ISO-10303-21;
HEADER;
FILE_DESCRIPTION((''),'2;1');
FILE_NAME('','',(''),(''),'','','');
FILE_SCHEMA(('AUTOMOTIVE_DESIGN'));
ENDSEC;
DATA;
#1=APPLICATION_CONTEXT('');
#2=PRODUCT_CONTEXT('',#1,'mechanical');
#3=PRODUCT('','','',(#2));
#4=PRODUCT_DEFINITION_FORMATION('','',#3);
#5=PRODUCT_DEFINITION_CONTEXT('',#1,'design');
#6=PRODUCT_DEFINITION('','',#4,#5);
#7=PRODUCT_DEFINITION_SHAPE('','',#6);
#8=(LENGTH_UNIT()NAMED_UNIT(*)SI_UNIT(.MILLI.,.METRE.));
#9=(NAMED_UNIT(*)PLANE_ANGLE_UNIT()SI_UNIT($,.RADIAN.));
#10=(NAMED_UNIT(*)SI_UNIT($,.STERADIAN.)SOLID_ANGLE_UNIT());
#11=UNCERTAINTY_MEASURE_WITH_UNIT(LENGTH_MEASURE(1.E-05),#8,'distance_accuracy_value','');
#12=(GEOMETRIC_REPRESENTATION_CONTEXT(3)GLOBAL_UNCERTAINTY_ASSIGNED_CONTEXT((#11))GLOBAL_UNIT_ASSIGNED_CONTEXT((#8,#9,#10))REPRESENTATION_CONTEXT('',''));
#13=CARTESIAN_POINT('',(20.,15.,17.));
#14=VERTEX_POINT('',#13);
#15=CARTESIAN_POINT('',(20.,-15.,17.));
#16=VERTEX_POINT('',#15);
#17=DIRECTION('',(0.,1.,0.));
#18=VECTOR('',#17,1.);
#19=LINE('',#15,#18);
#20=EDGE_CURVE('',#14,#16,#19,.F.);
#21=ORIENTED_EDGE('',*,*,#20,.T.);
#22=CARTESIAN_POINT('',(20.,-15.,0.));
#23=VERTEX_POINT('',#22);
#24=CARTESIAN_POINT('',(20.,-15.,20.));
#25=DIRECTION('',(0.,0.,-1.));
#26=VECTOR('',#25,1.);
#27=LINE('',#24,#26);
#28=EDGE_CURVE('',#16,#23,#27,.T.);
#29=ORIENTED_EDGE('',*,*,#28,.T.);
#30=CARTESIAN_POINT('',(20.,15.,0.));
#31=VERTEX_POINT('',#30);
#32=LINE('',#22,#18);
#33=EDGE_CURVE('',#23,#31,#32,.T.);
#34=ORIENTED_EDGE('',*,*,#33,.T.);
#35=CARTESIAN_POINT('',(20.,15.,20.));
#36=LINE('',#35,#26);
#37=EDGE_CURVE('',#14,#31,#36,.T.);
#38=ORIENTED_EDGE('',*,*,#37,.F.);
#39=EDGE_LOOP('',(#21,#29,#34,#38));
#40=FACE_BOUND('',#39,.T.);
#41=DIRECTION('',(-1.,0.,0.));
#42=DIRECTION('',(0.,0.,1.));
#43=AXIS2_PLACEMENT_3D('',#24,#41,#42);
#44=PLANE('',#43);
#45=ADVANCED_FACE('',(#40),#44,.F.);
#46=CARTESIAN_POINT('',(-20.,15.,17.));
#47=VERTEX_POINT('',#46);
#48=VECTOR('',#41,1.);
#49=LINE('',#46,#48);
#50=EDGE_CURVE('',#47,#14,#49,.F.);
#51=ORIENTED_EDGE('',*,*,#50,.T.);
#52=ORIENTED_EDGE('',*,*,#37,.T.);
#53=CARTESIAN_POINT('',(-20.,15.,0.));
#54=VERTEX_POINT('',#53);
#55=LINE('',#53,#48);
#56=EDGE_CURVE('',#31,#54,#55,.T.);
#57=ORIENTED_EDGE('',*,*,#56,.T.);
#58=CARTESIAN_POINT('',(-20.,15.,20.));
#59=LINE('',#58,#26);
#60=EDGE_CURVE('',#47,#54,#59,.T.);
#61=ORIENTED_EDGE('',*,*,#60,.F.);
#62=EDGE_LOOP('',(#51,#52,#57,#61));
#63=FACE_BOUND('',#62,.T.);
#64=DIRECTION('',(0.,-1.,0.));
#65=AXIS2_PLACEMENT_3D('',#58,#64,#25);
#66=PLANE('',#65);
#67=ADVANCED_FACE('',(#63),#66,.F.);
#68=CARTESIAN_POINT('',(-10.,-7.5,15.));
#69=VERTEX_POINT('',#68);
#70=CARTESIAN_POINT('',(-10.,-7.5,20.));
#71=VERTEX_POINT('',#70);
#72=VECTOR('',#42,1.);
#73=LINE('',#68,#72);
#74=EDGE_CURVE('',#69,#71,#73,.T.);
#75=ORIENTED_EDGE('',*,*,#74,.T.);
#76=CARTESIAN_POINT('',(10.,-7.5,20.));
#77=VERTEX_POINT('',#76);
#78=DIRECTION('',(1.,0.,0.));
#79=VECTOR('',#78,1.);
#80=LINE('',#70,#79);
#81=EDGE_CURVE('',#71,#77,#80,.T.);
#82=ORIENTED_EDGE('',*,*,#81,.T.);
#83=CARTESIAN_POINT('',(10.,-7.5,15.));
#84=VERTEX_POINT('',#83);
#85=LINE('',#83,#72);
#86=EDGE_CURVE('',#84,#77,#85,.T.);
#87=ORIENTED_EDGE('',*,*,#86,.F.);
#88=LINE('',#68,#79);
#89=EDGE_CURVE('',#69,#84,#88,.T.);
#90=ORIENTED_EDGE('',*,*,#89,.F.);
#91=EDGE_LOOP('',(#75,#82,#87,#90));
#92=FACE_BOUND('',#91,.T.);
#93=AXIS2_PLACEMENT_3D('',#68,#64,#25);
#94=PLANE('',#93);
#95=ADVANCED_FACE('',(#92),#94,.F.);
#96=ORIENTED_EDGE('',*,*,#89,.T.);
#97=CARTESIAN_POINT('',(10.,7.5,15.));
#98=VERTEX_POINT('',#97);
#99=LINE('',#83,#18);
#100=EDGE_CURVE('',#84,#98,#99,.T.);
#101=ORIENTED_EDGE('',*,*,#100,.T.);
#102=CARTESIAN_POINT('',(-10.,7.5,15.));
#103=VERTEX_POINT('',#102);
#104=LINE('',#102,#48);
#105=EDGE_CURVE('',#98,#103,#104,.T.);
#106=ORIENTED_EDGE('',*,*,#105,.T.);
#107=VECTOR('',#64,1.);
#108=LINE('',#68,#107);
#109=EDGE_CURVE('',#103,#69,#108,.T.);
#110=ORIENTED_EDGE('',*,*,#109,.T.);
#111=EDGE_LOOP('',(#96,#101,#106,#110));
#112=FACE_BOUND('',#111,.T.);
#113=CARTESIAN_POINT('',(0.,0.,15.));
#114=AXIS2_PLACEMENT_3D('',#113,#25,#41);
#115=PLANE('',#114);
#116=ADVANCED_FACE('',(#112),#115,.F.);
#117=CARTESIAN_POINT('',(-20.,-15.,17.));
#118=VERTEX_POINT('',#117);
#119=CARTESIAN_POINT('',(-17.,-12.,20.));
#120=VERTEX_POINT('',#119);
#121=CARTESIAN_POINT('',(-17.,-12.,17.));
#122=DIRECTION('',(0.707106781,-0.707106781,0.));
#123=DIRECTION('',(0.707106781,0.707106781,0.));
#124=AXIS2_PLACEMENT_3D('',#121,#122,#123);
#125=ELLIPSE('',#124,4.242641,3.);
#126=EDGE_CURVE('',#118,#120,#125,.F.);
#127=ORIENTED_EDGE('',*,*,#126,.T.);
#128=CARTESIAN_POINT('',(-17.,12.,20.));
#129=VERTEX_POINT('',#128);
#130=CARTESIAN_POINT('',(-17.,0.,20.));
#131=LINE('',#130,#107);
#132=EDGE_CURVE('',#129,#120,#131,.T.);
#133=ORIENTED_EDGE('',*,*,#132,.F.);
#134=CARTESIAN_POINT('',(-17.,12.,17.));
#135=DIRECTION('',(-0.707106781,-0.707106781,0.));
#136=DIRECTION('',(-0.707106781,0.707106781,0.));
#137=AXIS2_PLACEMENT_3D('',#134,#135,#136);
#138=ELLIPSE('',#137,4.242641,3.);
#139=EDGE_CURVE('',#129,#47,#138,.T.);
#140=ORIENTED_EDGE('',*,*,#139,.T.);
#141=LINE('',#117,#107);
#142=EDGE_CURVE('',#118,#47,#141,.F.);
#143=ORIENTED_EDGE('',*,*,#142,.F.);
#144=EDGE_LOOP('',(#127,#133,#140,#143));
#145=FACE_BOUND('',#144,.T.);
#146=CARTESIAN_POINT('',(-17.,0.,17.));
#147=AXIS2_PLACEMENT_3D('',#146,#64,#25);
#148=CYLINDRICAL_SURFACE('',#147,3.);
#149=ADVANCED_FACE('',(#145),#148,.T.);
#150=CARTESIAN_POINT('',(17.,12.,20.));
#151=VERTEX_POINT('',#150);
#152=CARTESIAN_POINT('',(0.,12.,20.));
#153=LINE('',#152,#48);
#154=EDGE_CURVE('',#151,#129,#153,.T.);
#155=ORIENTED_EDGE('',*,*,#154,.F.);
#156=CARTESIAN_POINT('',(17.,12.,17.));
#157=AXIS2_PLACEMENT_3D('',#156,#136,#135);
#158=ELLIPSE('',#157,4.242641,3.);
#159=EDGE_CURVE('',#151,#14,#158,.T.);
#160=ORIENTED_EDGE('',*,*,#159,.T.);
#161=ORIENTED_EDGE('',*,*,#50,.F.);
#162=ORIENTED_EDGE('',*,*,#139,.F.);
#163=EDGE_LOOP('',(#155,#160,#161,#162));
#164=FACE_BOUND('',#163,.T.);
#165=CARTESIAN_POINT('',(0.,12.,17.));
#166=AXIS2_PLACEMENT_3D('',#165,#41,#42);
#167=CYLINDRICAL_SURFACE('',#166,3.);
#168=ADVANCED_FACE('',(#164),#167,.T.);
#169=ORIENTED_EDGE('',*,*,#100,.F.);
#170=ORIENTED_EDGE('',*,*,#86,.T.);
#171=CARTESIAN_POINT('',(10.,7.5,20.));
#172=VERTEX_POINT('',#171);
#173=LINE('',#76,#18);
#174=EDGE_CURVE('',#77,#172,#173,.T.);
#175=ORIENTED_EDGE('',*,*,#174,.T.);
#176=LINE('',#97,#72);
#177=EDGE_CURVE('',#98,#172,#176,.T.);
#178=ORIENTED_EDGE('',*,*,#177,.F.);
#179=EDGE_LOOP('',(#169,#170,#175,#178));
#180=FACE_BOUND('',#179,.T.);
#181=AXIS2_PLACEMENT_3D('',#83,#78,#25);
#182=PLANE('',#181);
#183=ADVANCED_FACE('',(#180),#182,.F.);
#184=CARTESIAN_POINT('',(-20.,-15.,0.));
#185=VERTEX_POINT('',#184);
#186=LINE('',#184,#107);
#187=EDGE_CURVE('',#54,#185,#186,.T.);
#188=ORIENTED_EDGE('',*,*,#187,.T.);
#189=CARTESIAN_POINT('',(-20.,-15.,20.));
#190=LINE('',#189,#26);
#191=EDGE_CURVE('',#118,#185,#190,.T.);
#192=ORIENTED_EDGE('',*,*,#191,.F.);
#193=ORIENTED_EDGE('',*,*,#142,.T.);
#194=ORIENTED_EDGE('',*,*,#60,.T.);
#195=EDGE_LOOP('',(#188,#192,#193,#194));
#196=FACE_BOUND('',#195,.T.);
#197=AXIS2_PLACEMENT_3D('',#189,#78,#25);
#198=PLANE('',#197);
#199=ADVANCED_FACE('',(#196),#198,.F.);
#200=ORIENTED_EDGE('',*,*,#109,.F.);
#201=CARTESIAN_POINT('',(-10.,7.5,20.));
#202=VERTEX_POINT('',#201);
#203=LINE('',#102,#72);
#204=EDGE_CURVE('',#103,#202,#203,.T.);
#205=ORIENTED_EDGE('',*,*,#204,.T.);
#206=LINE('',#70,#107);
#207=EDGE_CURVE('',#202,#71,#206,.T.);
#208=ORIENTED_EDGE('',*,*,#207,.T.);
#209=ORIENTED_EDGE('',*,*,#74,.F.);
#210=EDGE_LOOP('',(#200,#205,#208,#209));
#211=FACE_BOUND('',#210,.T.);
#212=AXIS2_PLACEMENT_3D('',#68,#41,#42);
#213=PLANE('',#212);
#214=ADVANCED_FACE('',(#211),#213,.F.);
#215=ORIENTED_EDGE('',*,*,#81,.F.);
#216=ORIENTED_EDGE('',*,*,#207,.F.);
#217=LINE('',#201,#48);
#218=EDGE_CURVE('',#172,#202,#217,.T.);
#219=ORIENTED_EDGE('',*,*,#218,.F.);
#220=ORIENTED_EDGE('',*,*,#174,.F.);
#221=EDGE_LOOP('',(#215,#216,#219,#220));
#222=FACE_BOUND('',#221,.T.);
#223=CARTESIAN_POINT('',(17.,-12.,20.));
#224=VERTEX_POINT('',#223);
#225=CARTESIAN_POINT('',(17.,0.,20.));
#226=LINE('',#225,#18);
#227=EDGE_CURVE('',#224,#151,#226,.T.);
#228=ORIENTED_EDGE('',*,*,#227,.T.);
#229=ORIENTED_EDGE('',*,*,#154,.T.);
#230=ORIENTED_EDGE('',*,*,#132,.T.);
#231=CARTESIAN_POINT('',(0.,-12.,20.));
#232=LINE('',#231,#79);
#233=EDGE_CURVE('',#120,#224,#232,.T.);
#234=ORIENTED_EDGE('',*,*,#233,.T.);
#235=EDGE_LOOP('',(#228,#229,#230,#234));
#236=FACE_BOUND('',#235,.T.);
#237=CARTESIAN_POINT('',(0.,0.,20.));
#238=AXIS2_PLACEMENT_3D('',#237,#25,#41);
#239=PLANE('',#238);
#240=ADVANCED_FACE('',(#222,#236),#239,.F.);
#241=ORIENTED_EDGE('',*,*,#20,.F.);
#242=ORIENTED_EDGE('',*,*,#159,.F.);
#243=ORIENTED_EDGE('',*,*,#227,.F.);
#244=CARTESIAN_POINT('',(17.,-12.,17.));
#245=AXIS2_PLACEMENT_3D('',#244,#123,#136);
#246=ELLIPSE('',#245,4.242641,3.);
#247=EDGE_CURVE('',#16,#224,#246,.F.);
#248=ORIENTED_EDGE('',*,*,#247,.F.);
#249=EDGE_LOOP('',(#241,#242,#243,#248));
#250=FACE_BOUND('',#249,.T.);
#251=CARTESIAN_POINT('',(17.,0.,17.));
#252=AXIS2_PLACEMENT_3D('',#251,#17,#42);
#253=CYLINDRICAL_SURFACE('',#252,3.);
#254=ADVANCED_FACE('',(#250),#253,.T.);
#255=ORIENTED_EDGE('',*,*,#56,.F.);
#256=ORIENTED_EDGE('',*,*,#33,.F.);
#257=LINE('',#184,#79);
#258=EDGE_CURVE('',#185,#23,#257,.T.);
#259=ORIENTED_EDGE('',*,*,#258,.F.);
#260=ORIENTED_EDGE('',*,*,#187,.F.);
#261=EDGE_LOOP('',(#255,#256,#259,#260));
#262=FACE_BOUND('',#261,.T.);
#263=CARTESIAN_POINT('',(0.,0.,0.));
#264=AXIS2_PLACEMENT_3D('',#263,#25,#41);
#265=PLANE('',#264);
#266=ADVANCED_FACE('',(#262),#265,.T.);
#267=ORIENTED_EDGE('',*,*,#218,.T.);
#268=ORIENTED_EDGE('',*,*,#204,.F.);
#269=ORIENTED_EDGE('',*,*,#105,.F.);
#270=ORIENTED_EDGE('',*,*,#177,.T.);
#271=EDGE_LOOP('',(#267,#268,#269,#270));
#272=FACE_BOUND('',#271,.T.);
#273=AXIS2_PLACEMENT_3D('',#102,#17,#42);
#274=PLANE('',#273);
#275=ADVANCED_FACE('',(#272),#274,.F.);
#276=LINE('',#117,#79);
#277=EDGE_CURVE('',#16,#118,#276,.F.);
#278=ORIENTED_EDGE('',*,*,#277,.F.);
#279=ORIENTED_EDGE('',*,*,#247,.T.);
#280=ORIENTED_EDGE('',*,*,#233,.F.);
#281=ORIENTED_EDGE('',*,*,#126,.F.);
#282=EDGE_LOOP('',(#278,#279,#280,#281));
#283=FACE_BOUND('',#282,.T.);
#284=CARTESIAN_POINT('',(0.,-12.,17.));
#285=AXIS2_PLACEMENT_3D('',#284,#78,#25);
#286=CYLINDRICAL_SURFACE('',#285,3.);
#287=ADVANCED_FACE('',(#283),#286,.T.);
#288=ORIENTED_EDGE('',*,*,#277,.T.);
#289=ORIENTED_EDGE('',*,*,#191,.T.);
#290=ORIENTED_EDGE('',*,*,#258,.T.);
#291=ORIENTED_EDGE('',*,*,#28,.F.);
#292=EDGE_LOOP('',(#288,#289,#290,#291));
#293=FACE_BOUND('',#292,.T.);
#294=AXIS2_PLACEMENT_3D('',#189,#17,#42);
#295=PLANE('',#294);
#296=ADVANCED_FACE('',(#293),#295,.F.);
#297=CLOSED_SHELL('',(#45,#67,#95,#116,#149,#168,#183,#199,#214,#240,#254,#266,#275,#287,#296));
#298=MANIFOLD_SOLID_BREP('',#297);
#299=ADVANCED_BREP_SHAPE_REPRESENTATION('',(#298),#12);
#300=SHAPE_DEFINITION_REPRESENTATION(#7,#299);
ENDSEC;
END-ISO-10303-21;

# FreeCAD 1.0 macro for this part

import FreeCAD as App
import Part
import Sketcher


def edges_at(feature, points):
    """Names of the edges that pass closest to the given points."""
    edges = feature.Shape.Edges
    near = lambda p: min(range(len(edges)), key=lambda i: edges[i].distToShape(Part.Vertex(*p))[0])
    return sorted({f"Edge{near(p) + 1}" for p in points})

doc = App.newDocument("Part")
body = doc.addObject("PartDesign::Body", "Body")

# Sketch on XY plane
sketch1 = body.newObject("Sketcher::SketchObject", "Sketch")
sketch1.AttachmentSupport = (doc.getObject("XY_Plane"), [""])
sketch1.MapMode = "FlatFace"
sketch1.addGeometry(Part.LineSegment(App.Vector(-20, 15, 0), App.Vector(-20, -15, 0)), False)
sketch1.addGeometry(Part.LineSegment(App.Vector(-20, -15, 0), App.Vector(20, -15, 0)), False)
sketch1.addGeometry(Part.LineSegment(App.Vector(20, -15, 0), App.Vector(20, 15, 0)), False)
sketch1.addGeometry(Part.LineSegment(App.Vector(20, 15, 0), App.Vector(-20, 15, 0)), False)
sketch1.addConstraint(Sketcher.Constraint("Coincident", 0, 2, 1, 1))
sketch1.addConstraint(Sketcher.Constraint("Coincident", 1, 2, 2, 1))
sketch1.addConstraint(Sketcher.Constraint("Coincident", 2, 2, 3, 1))
sketch1.addConstraint(Sketcher.Constraint("Coincident", 3, 2, 0, 1))
sketch1.addConstraint(Sketcher.Constraint("Vertical", 0))
sketch1.addConstraint(Sketcher.Constraint("Horizontal", 1))
sketch1.addConstraint(Sketcher.Constraint("Vertical", 2))
sketch1.addConstraint(Sketcher.Constraint("Horizontal", 3))
sketch1.addConstraint(Sketcher.Constraint("Symmetric", 0, 2, 2, 2, -1, 1))
sketch1.addConstraint(Sketcher.Constraint("DistanceX", 1, 1, 1, 2, 40.0))
sketch1.addConstraint(Sketcher.Constraint("DistanceY", 0, 2, 0, 1, 30.0))
pad1 = body.newObject("PartDesign::Pad", "Pad")
pad1.Profile = sketch1
pad1.Length = 20

# Sketch on XY plane
sketch2 = body.newObject("Sketcher::SketchObject", "Sketch001")
sketch2.AttachmentSupport = (doc.getObject("XY_Plane"), [""])
sketch2.MapMode = "FlatFace"
sketch2.AttachmentOffset = App.Placement(App.Vector(0, 0, 20), App.Rotation())
sketch2.addGeometry(Part.LineSegment(App.Vector(-10, 8, 0), App.Vector(-10, -8, 0)), False)
sketch2.addGeometry(Part.LineSegment(App.Vector(-10, -8, 0), App.Vector(10, -8, 0)), False)
sketch2.addGeometry(Part.LineSegment(App.Vector(10, -8, 0), App.Vector(10, 8, 0)), False)
sketch2.addGeometry(Part.LineSegment(App.Vector(10, 8, 0), App.Vector(-10, 8, 0)), False)
sketch2.addConstraint(Sketcher.Constraint("Coincident", 0, 2, 1, 1))
sketch2.addConstraint(Sketcher.Constraint("Coincident", 1, 2, 2, 1))
sketch2.addConstraint(Sketcher.Constraint("Coincident", 2, 2, 3, 1))
sketch2.addConstraint(Sketcher.Constraint("Coincident", 3, 2, 0, 1))
sketch2.addConstraint(Sketcher.Constraint("Vertical", 0))
sketch2.addConstraint(Sketcher.Constraint("Horizontal", 1))
sketch2.addConstraint(Sketcher.Constraint("Vertical", 2))
sketch2.addConstraint(Sketcher.Constraint("Horizontal", 3))
sketch2.addConstraint(Sketcher.Constraint("Symmetric", 0, 2, 2, 2, -1, 1))
sketch2.addConstraint(Sketcher.Constraint("DistanceX", 1, 1, 1, 2, 20.0))
sketch2.addConstraint(Sketcher.Constraint("DistanceY", 0, 2, 0, 1, 15.0))
pocket1 = body.newObject("PartDesign::Pocket", "Pocket")
pocket1.Profile = sketch2
pocket1.Length = 5
doc.recompute()

fillet = body.newObject("PartDesign::Fillet", "Fillet")
fillet.Base = (pocket1, edges_at(pocket1, [
    (20, 0, 20),
    (0, 15, 20),
    (-20, 0, 20),
    (0, -15, 20),
]))
fillet.Radius = 3

doc.recompute()
